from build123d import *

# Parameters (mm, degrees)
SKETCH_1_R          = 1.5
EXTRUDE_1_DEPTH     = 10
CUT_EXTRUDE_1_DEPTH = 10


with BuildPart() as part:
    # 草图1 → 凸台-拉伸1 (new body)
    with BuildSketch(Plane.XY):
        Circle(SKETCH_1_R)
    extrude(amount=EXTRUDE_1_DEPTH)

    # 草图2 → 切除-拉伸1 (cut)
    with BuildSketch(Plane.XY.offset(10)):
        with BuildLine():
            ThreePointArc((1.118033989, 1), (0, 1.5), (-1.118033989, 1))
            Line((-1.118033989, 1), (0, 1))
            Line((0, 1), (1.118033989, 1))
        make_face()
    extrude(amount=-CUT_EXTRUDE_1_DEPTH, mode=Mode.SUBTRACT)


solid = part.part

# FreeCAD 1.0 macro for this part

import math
import FreeCAD as App
import Part
import Sketcher
from FreeCAD import Vector

doc = App.newDocument("Part")
body = doc.addObject("PartDesign::Body", "Body")

# Sketch on XY plane
sketch1 = doc.addObject("Sketcher::SketchObject", "Sketch")
body.addObject(sketch1)
sketch1.AttachmentSupport = (doc.XY_Plane, [""])
sketch1.MapMode = "FlatFace"
sketch1.addGeometry(Part.Circle(Vector(0, 0, 0), Vector(0, 0, 1), 1.5), False)
sketch1.addConstraint([
    Sketcher.Constraint("Coincident", 0, 3, -1, 1),
    Sketcher.Constraint("Diameter", 0, 3.0),
])
pad1 = doc.addObject("PartDesign::Pad", "Pad")
body.addObject(pad1)
pad1.Profile = sketch1
pad1.Length = 10

# Sketch on XY plane
sketch2 = doc.addObject("Sketcher::SketchObject", "Sketch001")
body.addObject(sketch2)
sketch2.AttachmentSupport = (doc.XY_Plane, [""])
sketch2.MapMode = "FlatFace"
sketch2.AttachmentOffset = App.Placement(Vector(0, 0, 10), App.Rotation())
sketch2.addGeometry([
    Part.ArcOfCircle(Part.Circle(Vector(0, 0, 0), Vector(0, 0, 1), 1.5), math.radians(42), math.radians(138)),
    Part.LineSegment(Vector(-1.1, 1, 0), Vector(1.1, 1, 0)),
], False)
sketch2.addConstraint([
    Sketcher.Constraint("Coincident", 0, 1, 1, 2),
    Sketcher.Constraint("Coincident", 1, 1, 0, 2),
    Sketcher.Constraint("Horizontal", 1),
    Sketcher.Constraint("Coincident", 0, 3, -1, 1),
    Sketcher.Constraint("Radius", 0, 1.5),
    Sketcher.Constraint("DistanceY", -1, 1, 0, 1, 1.0),
])
pocket1 = doc.addObject("PartDesign::Pocket", "Pocket")
body.addObject(pocket1)
pocket1.Profile = sketch2
pocket1.Length = 10

doc.recompute()
